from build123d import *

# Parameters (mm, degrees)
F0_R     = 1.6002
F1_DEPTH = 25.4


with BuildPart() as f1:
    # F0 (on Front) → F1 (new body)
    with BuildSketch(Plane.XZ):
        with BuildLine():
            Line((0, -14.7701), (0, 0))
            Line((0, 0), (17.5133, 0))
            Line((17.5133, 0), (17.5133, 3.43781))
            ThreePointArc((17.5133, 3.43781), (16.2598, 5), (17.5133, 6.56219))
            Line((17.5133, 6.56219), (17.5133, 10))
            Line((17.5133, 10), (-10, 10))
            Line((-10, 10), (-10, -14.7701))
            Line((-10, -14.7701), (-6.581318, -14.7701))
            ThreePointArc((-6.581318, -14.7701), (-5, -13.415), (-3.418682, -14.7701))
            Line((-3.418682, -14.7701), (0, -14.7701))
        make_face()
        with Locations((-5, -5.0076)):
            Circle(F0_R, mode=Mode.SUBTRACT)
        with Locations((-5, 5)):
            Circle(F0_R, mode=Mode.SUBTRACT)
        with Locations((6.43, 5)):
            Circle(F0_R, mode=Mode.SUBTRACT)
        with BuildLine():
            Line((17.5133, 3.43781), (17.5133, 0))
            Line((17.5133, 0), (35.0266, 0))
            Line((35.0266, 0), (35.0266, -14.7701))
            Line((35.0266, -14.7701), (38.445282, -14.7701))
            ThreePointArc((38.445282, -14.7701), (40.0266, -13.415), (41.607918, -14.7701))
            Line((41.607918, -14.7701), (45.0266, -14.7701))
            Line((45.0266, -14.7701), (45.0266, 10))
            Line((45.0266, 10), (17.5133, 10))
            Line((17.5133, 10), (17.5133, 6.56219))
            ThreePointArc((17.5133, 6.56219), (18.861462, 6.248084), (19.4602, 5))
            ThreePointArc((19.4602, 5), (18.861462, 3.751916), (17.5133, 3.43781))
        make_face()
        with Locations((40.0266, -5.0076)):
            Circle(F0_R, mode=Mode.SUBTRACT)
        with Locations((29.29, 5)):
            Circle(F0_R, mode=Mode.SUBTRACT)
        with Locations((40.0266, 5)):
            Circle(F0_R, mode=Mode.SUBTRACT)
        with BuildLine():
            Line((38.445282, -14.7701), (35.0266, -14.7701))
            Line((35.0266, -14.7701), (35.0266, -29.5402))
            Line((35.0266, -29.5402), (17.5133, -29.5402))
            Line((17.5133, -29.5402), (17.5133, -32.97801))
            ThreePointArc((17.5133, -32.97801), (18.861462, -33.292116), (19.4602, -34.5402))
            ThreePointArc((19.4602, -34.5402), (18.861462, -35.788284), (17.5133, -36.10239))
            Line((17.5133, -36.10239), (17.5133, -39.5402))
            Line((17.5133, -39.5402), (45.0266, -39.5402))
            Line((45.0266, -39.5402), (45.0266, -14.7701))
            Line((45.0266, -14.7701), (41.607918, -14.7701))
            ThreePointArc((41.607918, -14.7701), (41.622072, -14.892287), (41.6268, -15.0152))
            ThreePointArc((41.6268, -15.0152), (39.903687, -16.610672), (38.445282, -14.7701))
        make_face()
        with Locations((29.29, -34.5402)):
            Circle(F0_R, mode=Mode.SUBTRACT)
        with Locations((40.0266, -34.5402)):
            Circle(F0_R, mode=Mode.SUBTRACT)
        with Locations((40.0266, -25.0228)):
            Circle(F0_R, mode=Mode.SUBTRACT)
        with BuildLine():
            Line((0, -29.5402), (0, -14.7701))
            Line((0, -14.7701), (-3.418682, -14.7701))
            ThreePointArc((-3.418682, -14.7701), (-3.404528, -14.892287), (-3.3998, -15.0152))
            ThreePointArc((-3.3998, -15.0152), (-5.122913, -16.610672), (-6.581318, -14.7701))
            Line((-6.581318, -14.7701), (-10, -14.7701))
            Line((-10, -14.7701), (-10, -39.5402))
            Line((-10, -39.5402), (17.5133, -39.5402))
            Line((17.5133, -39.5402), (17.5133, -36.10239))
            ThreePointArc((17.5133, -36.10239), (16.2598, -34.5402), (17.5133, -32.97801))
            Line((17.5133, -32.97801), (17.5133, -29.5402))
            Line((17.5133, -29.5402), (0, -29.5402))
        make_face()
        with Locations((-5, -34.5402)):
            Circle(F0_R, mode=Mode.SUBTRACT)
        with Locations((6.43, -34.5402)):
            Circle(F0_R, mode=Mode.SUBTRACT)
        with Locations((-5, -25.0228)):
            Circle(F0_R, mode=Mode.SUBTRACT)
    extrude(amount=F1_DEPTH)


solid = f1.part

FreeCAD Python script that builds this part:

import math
import FreeCAD as App
import Part
import Sketcher
from FreeCAD import Vector
Q = App.Units.Quantity

doc = App.newDocument("Part")
params = doc.addObject("Spreadsheet::Sheet", "Params")
for row, (alias, value) in enumerate([
    ("sketch1_diameter", "0.126 in"),
    ("sketch1_width", "1.379 in"),
    ("sketch1_height", "1.163 in"),
    ("pad1_length", "1 in"),
], start=1):
    params.set(f"A{row}", alias)
    params.set(f"B{row}", "=" + value)
    params.setAlias(f"B{row}", alias)

body = doc.addObject("PartDesign::Body", "Body")

sketch1 = body.newObject("Sketcher::SketchObject", "Sketch")
sketch1.AttachmentSupport = (doc.getObject("XZ_Plane"), [""])
sketch1.MapMode = "FlatFace"
sketch1.addGeometry(Part.LineSegment(Vector(-10, 10, 0), Vector(-10, -39.54, 0)), False)
sketch1.addGeometry(Part.LineSegment(Vector(-10, -39.54, 0), Vector(45.03, -39.54, 0)), False)
sketch1.addGeometry(Part.LineSegment(Vector(45.03, -39.54, 0), Vector(45.03, 10, 0)), False)
sketch1.addGeometry(Part.LineSegment(Vector(45.03, 10, 0), Vector(-10, 10, 0)), False)
sketch1.addGeometry(Part.Circle(Vector(-5, -34.54, 0), Vector(0, 0, 1), 1.6), False)
sketch1.addGeometry(Part.Circle(Vector(6.43, -34.54, 0), Vector(0, 0, 1), 1.6), False)
sketch1.addGeometry(Part.Circle(Vector(-5, -25.02, 0), Vector(0, 0, 1), 1.6), False)
sketch1.addGeometry(Part.ArcOfCircle(Part.Circle(Vector(-5, -15.02, 0), Vector(0, 0, 1), 1.6), math.radians(9), math.radians(171)), False)
sketch1.addGeometry(Part.ArcOfCircle(Part.Circle(Vector(-5, -15.02, 0), Vector(0, 0, 1), 1.6), math.radians(0), math.radians(8.81)), False)
sketch1.addGeometry(Part.ArcOfCircle(Part.Circle(Vector(-5, -15.02, 0), Vector(0, 0, 1), 1.6), math.radians(171), math.radians(360)), False)
sketch1.addGeometry(Part.ArcOfCircle(Part.Circle(Vector(17.86, -34.54, 0), Vector(0, 0, 1), 1.6), math.radians(0), math.radians(103)), False)
sketch1.addGeometry(Part.ArcOfCircle(Part.Circle(Vector(17.86, -34.54, 0), Vector(0, 0, 1), 1.6), math.radians(-103), math.radians(0)), False)
sketch1.addGeometry(Part.ArcOfCircle(Part.Circle(Vector(17.86, -34.54, 0), Vector(0, 0, 1), 1.6), math.radians(103), math.radians(257)), False)
sketch1.addGeometry(Part.Circle(Vector(29.29, -34.54, 0), Vector(0, 0, 1), 1.6), False)
sketch1.addGeometry(Part.Circle(Vector(40.03, -34.54, 0), Vector(0, 0, 1), 1.6), False)
sketch1.addGeometry(Part.Circle(Vector(40.03, -25.02, 0), Vector(0, 0, 1), 1.6), False)
sketch1.addGeometry(Part.ArcOfCircle(Part.Circle(Vector(40.03, -15.02, 0), Vector(0, 0, 1), 1.6), math.radians(9), math.radians(171)), False)
sketch1.addGeometry(Part.ArcOfCircle(Part.Circle(Vector(40.03, -15.02, 0), Vector(0, 0, 1), 1.6), math.radians(0), math.radians(8.81)), False)
sketch1.addGeometry(Part.ArcOfCircle(Part.Circle(Vector(40.03, -15.02, 0), Vector(0, 0, 1), 1.6), math.radians(171), math.radians(360)), False)
sketch1.addGeometry(Part.Circle(Vector(-5, -5.01, 0), Vector(0, 0, 1), 1.6), False)
sketch1.addGeometry(Part.Circle(Vector(-5, 5, 0), Vector(0, 0, 1), 1.6), False)
sketch1.addGeometry(Part.Circle(Vector(6.43, 5, 0), Vector(0, 0, 1), 1.6), False)
sketch1.addGeometry(Part.LineSegment(Vector(0, 0, 0), Vector(35.03, 0, 0)), False)
sketch1.addGeometry(Part.LineSegment(Vector(35.03, 0, 0), Vector(35.03, -29.54, 0)), False)
sketch1.addGeometry(Part.LineSegment(Vector(35.03, -29.54, 0), Vector(0, -29.54, 0)), False)
sketch1.addGeometry(Part.LineSegment(Vector(0, -29.54, 0), Vector(0, 0, 0)), False)
sketch1.addGeometry(Part.Circle(Vector(40.03, -5.01, 0), Vector(0, 0, 1), 1.6), False)
sketch1.addGeometry(Part.ArcOfCircle(Part.Circle(Vector(17.86, 5, 0), Vector(0, 0, 1), 1.6), math.radians(103), math.radians(257)), False)
sketch1.addGeometry(Part.ArcOfCircle(Part.Circle(Vector(17.86, 5, 0), Vector(0, 0, 1), 1.6), math.radians(0), math.radians(103)), False)
sketch1.addGeometry(Part.ArcOfCircle(Part.Circle(Vector(17.86, 5, 0), Vector(0, 0, 1), 1.6), math.radians(-103), math.radians(0)), False)
sketch1.addGeometry(Part.Circle(Vector(29.29, 5, 0), Vector(0, 0, 1), 1.6), False)
sketch1.addGeometry(Part.Circle(Vector(40.03, 5, 0), Vector(0, 0, 1), 1.6), False)
sketch1.addConstraint(Sketcher.Constraint("Coincident", 0, 2, 1, 1))
sketch1.addConstraint(Sketcher.Constraint("Coincident", 1, 2, 2, 1))
sketch1.addConstraint(Sketcher.Constraint("Coincident", 2, 2, 3, 1))
sketch1.addConstraint(Sketcher.Constraint("Coincident", 3, 2, 0, 1))
sketch1.addConstraint(Sketcher.Constraint("Coincident", 7, 1, 8, 2))
sketch1.addConstraint(Sketcher.Constraint("Coincident", 8, 1, 9, 2))
sketch1.addConstraint(Sketcher.Constraint("Tangent", 9, 1, 7, 2))
sketch1.addConstraint(Sketcher.Constraint("Tangent", 10, 1, 11, 2))
sketch1.addConstraint(Sketcher.Constraint("Tangent", 11, 1, 12, 2))
sketch1.addConstraint(Sketcher.Constraint("Tangent", 12, 1, 10, 2))
sketch1.addConstraint(Sketcher.Constraint("Coincident", 16, 1, 17, 2))
sketch1.addConstraint(Sketcher.Constraint("Coincident", 17, 1, 18, 2))
sketch1.addConstraint(Sketcher.Constraint("Tangent", 18, 1, 16, 2))
sketch1.addConstraint(Sketcher.Constraint("Coincident", 22, 2, 23, 1))
sketch1.addConstraint(Sketcher.Constraint("Coincident", 23, 2, 24, 1))
sketch1.addConstraint(Sketcher.Constraint("Coincident", 24, 2, 25, 1))
sketch1.addConstraint(Sketcher.Constraint("Coincident", 25, 2, 22, 1))
sketch1.addConstraint(Sketcher.Constraint("Tangent", 27, 1, 28, 2))
sketch1.addConstraint(Sketcher.Constraint("Tangent", 28, 1, 29, 2))
sketch1.addConstraint(Sketcher.Constraint("Tangent", 29, 1, 27, 2))
sketch1.addConstraint(Sketcher.Constraint("Vertical", 0))
sketch1.addConstraint(Sketcher.Constraint("Horizontal", 1))
sketch1.addConstraint(Sketcher.Constraint("Vertical", 2))
sketch1.addConstraint(Sketcher.Constraint("Horizontal", 3))
sketch1.addConstraint(Sketcher.Constraint("Horizontal", 22))
sketch1.addConstraint(Sketcher.Constraint("Vertical", 23))
sketch1.addConstraint(Sketcher.Constraint("Horizontal", 24))
sketch1.addConstraint(Sketcher.Constraint("Vertical", 25))
sketch1.addConstraint(Sketcher.Constraint("Coincident", 25, 2, -1, 1))
sketch1.addConstraint(Sketcher.Constraint("Equal", 4, 5))
sketch1.addConstraint(Sketcher.Constraint("Equal", 5, 6))
sketch1.addConstraint(Sketcher.Constraint("Equal", 6, 7))
sketch1.addConstraint(Sketcher.Constraint("Equal", 7, 9))
sketch1.addConstraint(Sketcher.Constraint("Equal", 9, 10))
sketch1.addConstraint(Sketcher.Constraint("Equal", 12, 13))
sketch1.addConstraint(Sketcher.Constraint("Equal", 13, 14))
sketch1.addConstraint(Sketcher.Constraint("Equal", 14, 15))
sketch1.addConstraint(Sketcher.Constraint("Equal", 15, 16))
sketch1.addConstraint(Sketcher.Constraint("Equal", 8, 17))
sketch1.addConstraint(Sketcher.Constraint("Equal", 16, 18))
sketch1.addConstraint(Sketcher.Constraint("Equal", 18, 19))
sketch1.addConstraint(Sketcher.Constraint("Equal", 19, 20))
sketch1.addConstraint(Sketcher.Constraint("Equal", 20, 21))
sketch1.addConstraint(Sketcher.Constraint("Equal", 21, 26))
sketch1.addConstraint(Sketcher.Constraint("Equal", 26, 27))
sketch1.addConstraint(Sketcher.Constraint("Equal", 29, 30))
sketch1.addConstraint(Sketcher.Constraint("Equal", 30, 31))
sketch1.addConstraint(Sketcher.Constraint("Horizontal", 4, 3, 5, 3))
sketch1.addConstraint(Sketcher.Constraint("Horizontal", 5, 3, 10, 3))
sketch1.addConstraint(Sketcher.Constraint("Horizontal", 12, 3, 13, 3))
sketch1.addConstraint(Sketcher.Constraint("Horizontal", 13, 3, 14, 3))
sketch1.addConstraint(Sketcher.Constraint("Horizontal", 6, 3, 15, 3))
sketch1.addConstraint(Sketcher.Constraint("Horizontal", 9, 3, 16, 3))
sketch1.addConstraint(Sketcher.Constraint("Horizontal", 20, 3, 21, 3))
sketch1.addConstraint(Sketcher.Constraint("Horizontal", 19, 3, 26, 3))
sketch1.addConstraint(Sketcher.Constraint("Horizontal", 21, 3, 27, 3))
sketch1.addConstraint(Sketcher.Constraint("Horizontal", 29, 3, 30, 3))
sketch1.addConstraint(Sketcher.Constraint("Horizontal", 30, 3, 31, 3))
sketch1.addConstraint(Sketcher.Constraint("Horizontal", 18, 3, 8, 1))
sketch1.addConstraint(Sketcher.Constraint("Horizontal", 7, 1, 9, 1))
sketch1.addConstraint(Sketcher.Constraint("Horizontal", 14, 3, 10, 1))
sketch1.addConstraint(Sketcher.Constraint("Horizontal", 9, 1, 16, 1))
sketch1.addConstraint(Sketcher.Constraint("Horizontal", 8, 1, 17, 1))
sketch1.addConstraint(Sketcher.Constraint("Horizontal", 16, 1, 18, 1))
sketch1.addConstraint(Sketcher.Constraint("Horizontal", 31, 3, 28, 1))
sketch1.addConstraint(Sketcher.Constraint("Vertical", 4, 3, 6, 3))
sketch1.addConstraint(Sketcher.Constraint("Vertical", 6, 3, 7, 3))
sketch1.addConstraint(Sketcher.Constraint("Vertical", 14, 3, 15, 3))
sketch1.addConstraint(Sketcher.Constraint("Vertical", 15, 3, 16, 3))
sketch1.addConstraint(Sketcher.Constraint("Vertical", 9, 3, 19, 3))
sketch1.addConstraint(Sketcher.Constraint("Vertical", 19, 3, 20, 3))
sketch1.addConstraint(Sketcher.Constraint("Vertical", 5, 3, 21, 3))
sketch1.addConstraint(Sketcher.Constraint("Vertical", 18, 3, 26, 3))
sketch1.addConstraint(Sketcher.Constraint("Vertical", 12, 3, 27, 3))
sketch1.addConstraint(Sketcher.Constraint("Vertical", 13, 3, 30, 3))
sketch1.addConstraint(Sketcher.Constraint("Vertical", 26, 3, 31, 3))
sketch1.addConstraint(Sketcher.Constraint("Vertical", 11, 1, 12, 1))
sketch1.addConstraint(Sketcher.Constraint("Vertical", 12, 1, 27, 1))
sketch1.addConstraint(Sketcher.Constraint("Vertical", 27, 1, 29, 1))
sketch1.addConstraint(Sketcher.Constraint("Diameter", 4, Q("0.126 in")))
sketch1.addConstraint(Sketcher.Constraint("DistanceX", 4, 3, 10, 3, Q("0.9 in")))
sketch1.addConstraint(Sketcher.Constraint("DistanceX", 5, 3, 13, 3, Q("0.9 in")))
sketch1.addConstraint(Sketcher.Constraint("DistanceX", 22, 1, 22, 2, Q("1.379 in")))
sketch1.addConstraint(Sketcher.Constraint("DistanceY", 23, 2, 23, 1, Q("1.163 in")))
sketch1.addConstraint(Sketcher.Constraint("DistanceX", 4, 3, 5, 3, Q("0.45 in")))
sketch1.addConstraint(Sketcher.Constraint("DistanceY", 6, 3, 7, 3, Q("0.394 in")))
sketch1.addConstraint(Sketcher.Constraint("DistanceY", 9, 3, 19, 3, Q("0.394 in")))
sketch1.addConstraint(Sketcher.Constraint("DistanceY", 19, 3, 20, 3, Q("0.394 in")))
sketch1.addConstraint(Sketcher.Constraint("DistanceX", 1, 1, 1, 2, Q("55.0266 mm")))
sketch1.addConstraint(Sketcher.Constraint("DistanceY", 0, 2, 0, 1, Q("49.5402 mm")))
sketch1.addConstraint(Sketcher.Constraint("DistanceY", 7, 1, -1, 1, Q("0.5815 in")))
sketch1.addConstraint(Sketcher.Constraint("DistanceX", -1, 1, 11, 1, Q("0.6895 in")))
sketch1.addConstraint(Sketcher.Constraint("Radius", 8, Q("1.600393 mm")))
sketch1.addConstraint(Sketcher.Constraint("DistanceX", 4, 3, -1, 1, Q("5 mm")))
sketch1.addConstraint(Sketcher.Constraint("DistanceY", 4, 3, -1, 1, Q("34.5402 mm")))
sketch1.addConstraint(Sketcher.Constraint("DistanceY", 6, 3, -1, 1, Q("25.0228 mm")))
sketch1.addConstraint(Sketcher.Constraint("DistanceX", -1, 1, 14, 3, Q("40.0266 mm")))
sketch1.addConstraint(Sketcher.Constraint("DistanceX", 0, 2, -1, 1, Q("10 mm")))
sketch1.addConstraint(Sketcher.Constraint("DistanceY", 0, 2, -1, 1, Q("39.5402 mm")))
sketch1.setExpression("Constraints[79]", "Params.sketch1_diameter")
sketch1.setExpression("Constraints[82]", "Params.sketch1_width")
sketch1.setExpression("Constraints[83]", "Params.sketch1_height")
pad1 = body.newObject("PartDesign::Pad", "Pad")
pad1.Profile = sketch1
pad1.setExpression("Length", "Params.pad1_length")

doc.recompute()
